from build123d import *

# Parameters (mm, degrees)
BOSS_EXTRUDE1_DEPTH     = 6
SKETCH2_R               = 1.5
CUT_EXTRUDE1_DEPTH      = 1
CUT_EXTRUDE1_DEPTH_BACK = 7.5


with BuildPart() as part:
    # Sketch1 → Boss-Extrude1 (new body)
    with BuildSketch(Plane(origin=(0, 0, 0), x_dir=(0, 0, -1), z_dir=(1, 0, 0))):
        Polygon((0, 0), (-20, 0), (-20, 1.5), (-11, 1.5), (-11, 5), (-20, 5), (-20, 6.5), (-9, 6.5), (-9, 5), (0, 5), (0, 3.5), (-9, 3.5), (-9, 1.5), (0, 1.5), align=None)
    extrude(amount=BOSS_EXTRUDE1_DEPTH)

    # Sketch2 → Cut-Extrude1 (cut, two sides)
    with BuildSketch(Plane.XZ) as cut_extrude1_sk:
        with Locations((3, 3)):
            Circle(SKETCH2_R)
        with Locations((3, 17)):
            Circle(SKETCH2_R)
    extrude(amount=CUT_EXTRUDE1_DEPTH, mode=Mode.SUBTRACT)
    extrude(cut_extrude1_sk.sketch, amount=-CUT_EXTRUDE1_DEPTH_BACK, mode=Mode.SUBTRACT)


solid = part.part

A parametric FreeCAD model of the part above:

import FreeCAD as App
import Part
import Sketcher

V = App.Vector
Q = App.Units.Quantity

doc = App.newDocument("Part")
params = doc.addObject("Spreadsheet::Sheet", "Params")
for row, (alias, value) in enumerate([
    ("sketch1_width", "2 mm"),
    ("sketch1_height", "20 mm"),
    ("sketch1_height2", "9 mm"),
    ("sketch1_width2", "1.5 mm"),
    ("pad1_length", "6 mm"),
    ("sketch2_diameter", "3 mm"),
], start=1):
    params.set(f"A{row}", alias)
    params.set(f"B{row}", "=" + value)
    params.setAlias(f"B{row}", alias)

body = doc.addObject("PartDesign::Body", "Body")

# Sketch on YZ plane
sketch1 = body.newObject("Sketcher::SketchObject", "Sketch")
sketch1.AttachmentSupport = (doc.getObject("YZ_Plane"), [""])
sketch1.MapMode = "FlatFace"
sketch1.addGeometry([
    Part.LineSegment(V(0, 20, 0), V(0, 0, 0)),  # 0
    Part.LineSegment(V(0, 0, 0), V(1.5, 0, 0)),  # 1
    Part.LineSegment(V(1.5, 0, 0), V(1.5, 9, 0)),  # 2
    Part.LineSegment(V(1.5, 9, 0), V(3.5, 9, 0)),  # 3
    Part.LineSegment(V(3.5, 9, 0), V(3.5, 0, 0)),  # 4
    Part.LineSegment(V(3.5, 0, 0), V(5, 0, 0)),  # 5
    Part.LineSegment(V(5, 0, 0), V(5, 9, 0)),  # 6
    Part.LineSegment(V(5, 9, 0), V(6.5, 9, 0)),  # 7
    Part.LineSegment(V(6.5, 9, 0), V(6.5, 20, 0)),  # 8
    Part.LineSegment(V(6.5, 20, 0), V(5, 20, 0)),  # 9
    Part.LineSegment(V(5, 20, 0), V(5, 11, 0)),  # 10
    Part.LineSegment(V(5, 11, 0), V(1.5, 11, 0)),  # 11
    Part.LineSegment(V(1.5, 11, 0), V(1.5, 20, 0)),  # 12
    Part.LineSegment(V(1.5, 20, 0), V(0, 20, 0)),  # 13
], False)
sketch1.addConstraint([
    Sketcher.Constraint("Coincident", 0, 2, 1, 1),
    Sketcher.Constraint("Coincident", 1, 2, 2, 1),
    Sketcher.Constraint("Coincident", 2, 2, 3, 1),
    Sketcher.Constraint("Coincident", 3, 2, 4, 1),
    Sketcher.Constraint("Coincident", 4, 2, 5, 1),
    Sketcher.Constraint("Coincident", 5, 2, 6, 1),
    Sketcher.Constraint("Coincident", 6, 2, 7, 1),
    Sketcher.Constraint("Coincident", 7, 2, 8, 1),
    Sketcher.Constraint("Coincident", 8, 2, 9, 1),
    Sketcher.Constraint("Coincident", 9, 2, 10, 1),
    Sketcher.Constraint("Coincident", 10, 2, 11, 1),
    Sketcher.Constraint("Coincident", 11, 2, 12, 1),
    Sketcher.Constraint("Coincident", 12, 2, 13, 1),
    Sketcher.Constraint("Coincident", 13, 2, 0, 1),
    Sketcher.Constraint("Vertical", 0),
    Sketcher.Constraint("Horizontal", 1),
    Sketcher.Constraint("Vertical", 2),
    Sketcher.Constraint("Horizontal", 3),
    Sketcher.Constraint("Vertical", 4),
    Sketcher.Constraint("Horizontal", 5),
    Sketcher.Constraint("Vertical", 6),
    Sketcher.Constraint("Horizontal", 7),
    Sketcher.Constraint("Vertical", 8),
    Sketcher.Constraint("Horizontal", 9),
    Sketcher.Constraint("Vertical", 10),
    Sketcher.Constraint("Horizontal", 11),
    Sketcher.Constraint("Vertical", 12),
    Sketcher.Constraint("Horizontal", 13),
    Sketcher.Constraint("Coincident", 0, 2, -1, 1),
    Sketcher.Constraint("PointOnObject", 4, 2, -1),
    Sketcher.Constraint("Horizontal", 3, 2, 6, 2),
    Sketcher.Constraint("Horizontal", 9, 2, 12, 2),
    Sketcher.Constraint("Vertical", 6, 2, 9, 2),
    Sketcher.Constraint("Vertical", 2, 2, 11, 2),
    Sketcher.Constraint("Equal", 1, 5),
    Sketcher.Constraint("Equal", 5, 7),
    Sketcher.Constraint("Equal", 6, 10),
    Sketcher.Constraint("DistanceX", 3, 1, 3, 2, Q("2 mm")),
    Sketcher.Constraint("DistanceY", 0, 2, 0, 1, Q("20 mm")),
    Sketcher.Constraint("DistanceY", 2, 1, 2, 2, Q("9 mm")),
    Sketcher.Constraint("DistanceX", 1, 1, 1, 2, Q("1.5 mm")),
])
sketch1.setExpression("Constraints[37]", "Params.sketch1_width")
sketch1.setExpression("Constraints[38]", "Params.sketch1_height")
sketch1.setExpression("Constraints[39]", "Params.sketch1_height2")
sketch1.setExpression("Constraints[40]", "Params.sketch1_width2")
pad1 = body.newObject("PartDesign::Pad", "Pad")
pad1.Profile = sketch1
pad1.setExpression("Length", "Params.pad1_length")

# Sketch on XZ plane
sketch2 = body.newObject("Sketcher::SketchObject", "Sketch001")
sketch2.AttachmentSupport = (doc.getObject("XZ_Plane"), [""])
sketch2.MapMode = "FlatFace"
sketch2.addGeometry([
    Part.Circle(V(3, 3, 0), V(0, 0, 1), 1.5),
    Part.Circle(V(3, 17, 0), V(0, 0, 1), 1.5),
], False)
sketch2.addConstraint([
    Sketcher.Constraint("Equal", 0, 1),
    Sketcher.Constraint("Vertical", 0, 3, 1, 3),
    Sketcher.Constraint("Diameter", 0, Q("3 mm")),
    Sketcher.Constraint("DistanceX", -1, 1, 0, 3, Q("3 mm")),
    Sketcher.Constraint("DistanceY", -1, 1, 0, 3, Q("3 mm")),
    Sketcher.Constraint("DistanceY", -1, 1, 1, 3, Q("17 mm")),
])
sketch2.setExpression("Constraints[2]", "Params.sketch2_diameter")
pocket1 = body.newObject("PartDesign::Pocket", "Pocket")
pocket1.Profile = sketch2
pocket1.Type = "ThroughAll"
pocket1.Midplane = True

doc.recompute()
